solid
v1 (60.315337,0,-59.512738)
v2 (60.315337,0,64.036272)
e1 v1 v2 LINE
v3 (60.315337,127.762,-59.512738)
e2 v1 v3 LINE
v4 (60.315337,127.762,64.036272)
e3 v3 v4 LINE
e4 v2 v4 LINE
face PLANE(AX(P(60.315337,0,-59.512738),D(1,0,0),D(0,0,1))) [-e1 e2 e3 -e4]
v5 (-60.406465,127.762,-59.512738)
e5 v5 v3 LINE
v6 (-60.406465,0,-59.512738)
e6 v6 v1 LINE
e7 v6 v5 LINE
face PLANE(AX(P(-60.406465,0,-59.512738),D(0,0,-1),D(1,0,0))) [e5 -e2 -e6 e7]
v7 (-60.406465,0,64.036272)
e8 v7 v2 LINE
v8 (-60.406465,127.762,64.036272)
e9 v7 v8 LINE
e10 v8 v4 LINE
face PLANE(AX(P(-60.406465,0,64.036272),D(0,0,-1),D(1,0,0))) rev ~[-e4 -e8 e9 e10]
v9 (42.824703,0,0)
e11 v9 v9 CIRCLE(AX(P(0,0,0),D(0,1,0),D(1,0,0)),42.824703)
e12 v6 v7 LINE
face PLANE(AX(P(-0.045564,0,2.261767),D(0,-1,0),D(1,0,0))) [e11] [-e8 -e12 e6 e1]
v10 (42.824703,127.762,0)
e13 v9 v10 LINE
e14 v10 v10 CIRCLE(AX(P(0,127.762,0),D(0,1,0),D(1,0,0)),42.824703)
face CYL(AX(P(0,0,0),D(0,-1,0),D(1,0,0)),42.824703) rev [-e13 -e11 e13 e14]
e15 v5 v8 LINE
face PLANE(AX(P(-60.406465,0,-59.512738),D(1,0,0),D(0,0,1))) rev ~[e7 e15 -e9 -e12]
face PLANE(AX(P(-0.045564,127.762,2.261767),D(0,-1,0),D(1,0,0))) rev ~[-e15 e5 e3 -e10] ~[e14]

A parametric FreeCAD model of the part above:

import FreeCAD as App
import Part
import Sketcher
from FreeCAD import Vector
Q = App.Units.Quantity


def add_polygon(sketch, points):
    """Adds a closed chain of lines whose ends are joined by coincident constraints."""
    first, n = sketch.GeometryCount, len(points)
    for a, b in zip(points, points[1:] + points[:1]):
        sketch.addGeometry(Part.LineSegment(App.Vector(*a, 0), App.Vector(*b, 0)), False)
    for i in range(n):
        sketch.addConstraint(Sketcher.Constraint("Coincident", first + i, 2, first + (i + 1) % n, 1))

doc = App.newDocument("Part")
body = doc.addObject("PartDesign::Body", "Body")

# Sketch on XZ plane
sketch1 = body.newObject("Sketcher::SketchObject", "Sketch")
sketch1.AttachmentSupport = (doc.getObject("XZ_Plane"), [""])
sketch1.MapMode = "FlatFace"
add_polygon(sketch1, [(-60.406465, 64.036272), (-60.406465, -59.512738), (60.315337, -59.512738), (60.315337, 64.036272)])  # lines 0-3
sketch1.addGeometry(Part.Circle(Vector(0, 0, 0), Vector(0, 0, 1), 42.824703), False)  # 4
sketch1.addConstraint(Sketcher.Constraint("Vertical", 0))
sketch1.addConstraint(Sketcher.Constraint("Horizontal", 1))
sketch1.addConstraint(Sketcher.Constraint("Vertical", 2))
sketch1.addConstraint(Sketcher.Constraint("Horizontal", 3))
sketch1.addConstraint(Sketcher.Constraint("Coincident", 4, 3, -1, 1))
sketch1.addConstraint(Sketcher.Constraint("Diameter", 4, Q("85.649406 mm")))
sketch1.addConstraint(Sketcher.Constraint("DistanceX", 1, 1, 1, 2, Q("120.721802 mm")))
sketch1.addConstraint(Sketcher.Constraint("DistanceY", 0, 2, 0, 1, Q("123.54901 mm")))
sketch1.addConstraint(Sketcher.Constraint("DistanceY", -1, 1, 2, 2, Q("64.036272 mm")))
sketch1.addConstraint(Sketcher.Constraint("DistanceX", 0, 2, -1, 1, Q("60.406465 mm")))
pad1 = body.newObject("PartDesign::Pad", "Pad")
pad1.Profile = sketch1
pad1.Length = Q("5.03 in")
pad1.Reversed = True

doc.recompute()
